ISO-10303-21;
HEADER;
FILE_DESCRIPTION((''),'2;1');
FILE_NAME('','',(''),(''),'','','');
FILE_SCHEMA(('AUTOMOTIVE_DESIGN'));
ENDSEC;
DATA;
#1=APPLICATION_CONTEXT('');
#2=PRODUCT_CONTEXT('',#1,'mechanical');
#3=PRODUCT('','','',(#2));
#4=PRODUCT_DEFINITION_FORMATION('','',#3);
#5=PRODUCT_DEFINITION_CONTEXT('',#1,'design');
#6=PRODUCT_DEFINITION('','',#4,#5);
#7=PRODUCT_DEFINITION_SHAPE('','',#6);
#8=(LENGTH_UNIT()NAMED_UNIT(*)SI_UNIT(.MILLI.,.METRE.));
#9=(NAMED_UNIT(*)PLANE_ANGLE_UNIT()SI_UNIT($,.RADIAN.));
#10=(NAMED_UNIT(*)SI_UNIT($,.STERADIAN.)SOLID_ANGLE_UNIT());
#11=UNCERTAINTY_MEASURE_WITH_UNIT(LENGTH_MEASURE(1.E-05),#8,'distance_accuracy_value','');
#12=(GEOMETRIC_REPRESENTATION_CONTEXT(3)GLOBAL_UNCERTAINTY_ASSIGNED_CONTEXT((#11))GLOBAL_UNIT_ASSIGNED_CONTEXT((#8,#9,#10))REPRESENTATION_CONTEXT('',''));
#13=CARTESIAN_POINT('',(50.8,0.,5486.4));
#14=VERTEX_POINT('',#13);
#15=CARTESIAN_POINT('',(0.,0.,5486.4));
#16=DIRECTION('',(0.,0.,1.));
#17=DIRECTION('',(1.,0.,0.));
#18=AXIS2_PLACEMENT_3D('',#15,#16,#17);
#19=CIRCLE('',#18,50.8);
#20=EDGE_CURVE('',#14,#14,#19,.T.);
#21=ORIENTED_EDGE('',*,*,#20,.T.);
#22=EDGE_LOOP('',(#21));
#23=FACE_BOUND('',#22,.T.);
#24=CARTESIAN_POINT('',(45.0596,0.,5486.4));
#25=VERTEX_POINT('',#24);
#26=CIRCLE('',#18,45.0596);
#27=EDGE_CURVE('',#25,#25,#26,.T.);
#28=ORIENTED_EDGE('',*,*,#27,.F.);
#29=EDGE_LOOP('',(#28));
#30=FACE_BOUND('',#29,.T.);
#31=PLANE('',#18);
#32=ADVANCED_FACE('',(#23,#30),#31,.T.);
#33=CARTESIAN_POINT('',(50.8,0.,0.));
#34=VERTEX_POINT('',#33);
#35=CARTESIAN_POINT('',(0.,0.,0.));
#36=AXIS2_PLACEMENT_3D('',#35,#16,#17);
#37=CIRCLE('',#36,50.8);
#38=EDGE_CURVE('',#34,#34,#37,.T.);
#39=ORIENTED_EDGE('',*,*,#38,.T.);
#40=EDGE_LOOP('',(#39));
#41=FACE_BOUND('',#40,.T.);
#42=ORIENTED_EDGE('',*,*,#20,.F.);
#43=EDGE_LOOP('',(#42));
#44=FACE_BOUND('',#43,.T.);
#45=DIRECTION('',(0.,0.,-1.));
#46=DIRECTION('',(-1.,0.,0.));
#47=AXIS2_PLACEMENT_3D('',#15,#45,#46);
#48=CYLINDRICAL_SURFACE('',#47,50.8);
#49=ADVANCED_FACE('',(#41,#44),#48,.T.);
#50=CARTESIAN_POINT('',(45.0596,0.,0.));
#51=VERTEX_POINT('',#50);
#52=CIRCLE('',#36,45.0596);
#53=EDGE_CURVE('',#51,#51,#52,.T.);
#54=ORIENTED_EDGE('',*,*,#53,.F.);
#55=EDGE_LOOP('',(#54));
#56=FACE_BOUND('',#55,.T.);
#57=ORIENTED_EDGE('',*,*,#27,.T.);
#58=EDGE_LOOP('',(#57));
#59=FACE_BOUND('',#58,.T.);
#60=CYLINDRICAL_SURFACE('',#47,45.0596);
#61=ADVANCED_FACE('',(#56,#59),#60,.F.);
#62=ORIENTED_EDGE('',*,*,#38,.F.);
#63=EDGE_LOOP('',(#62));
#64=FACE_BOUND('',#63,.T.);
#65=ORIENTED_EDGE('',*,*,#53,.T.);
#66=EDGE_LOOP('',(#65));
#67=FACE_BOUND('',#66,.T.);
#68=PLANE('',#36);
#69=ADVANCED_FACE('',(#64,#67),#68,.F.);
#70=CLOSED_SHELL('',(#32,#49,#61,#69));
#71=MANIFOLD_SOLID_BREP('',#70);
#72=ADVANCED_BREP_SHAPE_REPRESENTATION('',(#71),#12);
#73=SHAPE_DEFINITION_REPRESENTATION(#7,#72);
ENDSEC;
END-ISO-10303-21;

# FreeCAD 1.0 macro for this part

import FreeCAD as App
import Part
import Sketcher
Q = App.Units.Quantity

doc = App.newDocument("Part")
params = doc.addObject("Spreadsheet::Sheet", "Params")
for row, (alias, value) in enumerate([
    ("sketch1_diameter", "4 in"),
    ("sketch1_diameter2", "3.548 in"),
    ("pad1_length", "216 in"),
], start=1):
    params.set(f"A{row}", alias)
    params.set(f"B{row}", "=" + value)
    params.setAlias(f"B{row}", alias)

body = doc.addObject("PartDesign::Body", "Body")

# Sketch on XY plane
sketch1 = body.newObject("Sketcher::SketchObject", "Sketch")
sketch1.AttachmentSupport = (doc.getObject("XY_Plane"), [""])
sketch1.MapMode = "FlatFace"
sketch1.addGeometry([
    Part.Circle(App.Vector(0, 0, 0), App.Vector(0, 0, 1), 51),
    Part.Circle(App.Vector(0, 0, 0), App.Vector(0, 0, 1), 45),
], False)
sketch1.addConstraint([
    Sketcher.Constraint("Coincident", 0, 3, -1, 1),
    Sketcher.Constraint("Coincident", 1, 3, -1, 1),
    Sketcher.Constraint("Diameter", 0, Q("4 in")),
    Sketcher.Constraint("Diameter", 1, Q("3.548 in")),
])
sketch1.setExpression("Constraints[2]", "Params.sketch1_diameter")
sketch1.setExpression("Constraints[3]", "Params.sketch1_diameter2")
pad1 = body.newObject("PartDesign::Pad", "Pad")
pad1.Profile = sketch1
pad1.setExpression("Length", "Params.pad1_length")

doc.recompute()
